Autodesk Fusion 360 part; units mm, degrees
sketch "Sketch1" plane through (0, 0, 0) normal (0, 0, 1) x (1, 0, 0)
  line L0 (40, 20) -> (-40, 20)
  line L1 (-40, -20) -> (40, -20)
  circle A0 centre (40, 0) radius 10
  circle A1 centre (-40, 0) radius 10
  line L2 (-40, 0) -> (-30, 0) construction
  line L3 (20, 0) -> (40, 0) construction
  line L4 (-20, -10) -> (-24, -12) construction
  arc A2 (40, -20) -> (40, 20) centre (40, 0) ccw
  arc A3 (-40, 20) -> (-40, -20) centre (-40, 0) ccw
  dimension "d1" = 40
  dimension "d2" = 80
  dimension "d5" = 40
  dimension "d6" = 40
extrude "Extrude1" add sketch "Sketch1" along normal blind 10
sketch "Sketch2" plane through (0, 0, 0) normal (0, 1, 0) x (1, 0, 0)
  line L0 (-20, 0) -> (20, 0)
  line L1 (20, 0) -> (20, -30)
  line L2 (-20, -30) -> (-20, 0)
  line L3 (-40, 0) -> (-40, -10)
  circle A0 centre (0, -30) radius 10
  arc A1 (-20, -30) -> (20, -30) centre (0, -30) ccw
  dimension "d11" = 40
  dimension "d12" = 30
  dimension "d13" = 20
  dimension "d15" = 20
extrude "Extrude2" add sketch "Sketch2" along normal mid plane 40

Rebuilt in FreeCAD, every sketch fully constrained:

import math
import FreeCAD as App
import Part
import Sketcher

V = App.Vector
Q = App.Units.Quantity

doc = App.newDocument("Part")
params = doc.addObject("Spreadsheet::Sheet", "Params")
for row, (alias, value) in enumerate([
    ("sketch1_radius", "20 mm"),
    ("sketch1_width", "80 mm"),
    ("sketch1_diameter", "20 mm"),
    ("pad1_length", "10 mm"),
    ("sketch2_diameter", "20 mm"),
    ("sketch2_radius", "20 mm"),
    ("sketch2_height", "30 mm"),
    ("pad2_length", "40 mm"),
], start=1):
    params.set(f"A{row}", alias)
    params.set(f"B{row}", "=" + value)
    params.setAlias(f"B{row}", alias)

body = doc.addObject("PartDesign::Body", "Body")

# Sketch on XY plane
sketch1 = doc.addObject("Sketcher::SketchObject", "Sketch")
body.addObject(sketch1)
sketch1.AttachmentSupport = (doc.XY_Plane, [""])
sketch1.MapMode = "FlatFace"
sketch1.addGeometry([
    Part.ArcOfCircle(Part.Circle(V(40, 0, 0), V(0, 0, 1), 20), math.radians(-90), math.radians(90)),  # 0
    Part.LineSegment(V(40, 20, 0), V(-40, 20, 0)),  # 1
    Part.ArcOfCircle(Part.Circle(V(-40, 0, 0), V(0, 0, 1), 20), math.radians(90), math.radians(270)),  # 2
    Part.LineSegment(V(-40, -20, 0), V(40, -20, 0)),  # 3
    Part.Circle(V(-40, 0, 0), V(0, 0, 1), 10),  # 4
    Part.Circle(V(40, 0, 0), V(0, 0, 1), 10),  # 5
], False)
sketch1.addConstraint([
    Sketcher.Constraint("Tangent", 0, 2, 1, 1),
    Sketcher.Constraint("Tangent", 1, 2, 2, 1),
    Sketcher.Constraint("Tangent", 2, 2, 3, 1),
    Sketcher.Constraint("Tangent", 3, 2, 0, 1),
    Sketcher.Constraint("Horizontal", 1),
    Sketcher.Constraint("Horizontal", 3),
    Sketcher.Constraint("Coincident", 4, 3, 2, 3),
    Sketcher.Constraint("Coincident", 5, 3, 0, 3),
    Sketcher.Constraint("Equal", 4, 5),
    Sketcher.Constraint("Symmetric", 0, 3, 2, 3, -1, 1),
    Sketcher.Constraint("Radius", 0, Q("20 mm")),
    Sketcher.Constraint("DistanceX", 1, 2, 1, 1, Q("80 mm")),
    Sketcher.Constraint("Diameter", 4, Q("20 mm")),
])
sketch1.setExpression("Constraints[10]", "Params.sketch1_radius")
sketch1.setExpression("Constraints[11]", "Params.sketch1_width")
sketch1.setExpression("Constraints[12]", "Params.sketch1_diameter")
pad1 = doc.addObject("PartDesign::Pad", "Pad")
body.addObject(pad1)
pad1.Profile = sketch1
pad1.setExpression("Length", "Params.pad1_length")

# Sketch on XZ plane
sketch2 = doc.addObject("Sketcher::SketchObject", "Sketch001")
body.addObject(sketch2)
sketch2.AttachmentSupport = (doc.XZ_Plane, [""])
sketch2.MapMode = "FlatFace"
sketch2.addGeometry([
    Part.LineSegment(V(20, 0, 0), V(-20, 0, 0)),  # 0
    Part.LineSegment(V(-20, 0, 0), V(-20, 30, 0)),  # 1
    Part.ArcOfCircle(Part.Circle(V(0, 30, 0), V(0, 0, 1), 20), math.radians(0), math.radians(180)),  # 2
    Part.LineSegment(V(20, 30, 0), V(20, 0, 0)),  # 3
    Part.Circle(V(0, 30, 0), V(0, 0, 1), 10),  # 4
], False)
sketch2.addConstraint([
    Sketcher.Constraint("Coincident", 0, 2, 1, 1),
    Sketcher.Constraint("Tangent", 1, 2, 2, 2),
    Sketcher.Constraint("Tangent", 2, 1, 3, 1),
    Sketcher.Constraint("Coincident", 3, 2, 0, 1),
    Sketcher.Constraint("Horizontal", 0),
    Sketcher.Constraint("Vertical", 1),
    Sketcher.Constraint("Vertical", 3),
    Sketcher.Constraint("Coincident", 4, 3, 2, 3),
    Sketcher.Constraint("Symmetric", 0, 2, 3, 2, -1, 1),
    Sketcher.Constraint("Diameter", 4, Q("20 mm")),
    Sketcher.Constraint("Radius", 2, Q("20 mm")),
    Sketcher.Constraint("DistanceY", 1, 1, 1, 2, Q("30 mm")),
])
sketch2.setExpression("Constraints[9]", "Params.sketch2_diameter")
sketch2.setExpression("Constraints[10]", "Params.sketch2_radius")
sketch2.setExpression("Constraints[11]", "Params.sketch2_height")
pad2 = doc.addObject("PartDesign::Pad", "Pad001")
body.addObject(pad2)
pad2.Profile = sketch2
pad2.setExpression("Length", "Params.pad2_length")
pad2.Midplane = True

doc.recompute()
